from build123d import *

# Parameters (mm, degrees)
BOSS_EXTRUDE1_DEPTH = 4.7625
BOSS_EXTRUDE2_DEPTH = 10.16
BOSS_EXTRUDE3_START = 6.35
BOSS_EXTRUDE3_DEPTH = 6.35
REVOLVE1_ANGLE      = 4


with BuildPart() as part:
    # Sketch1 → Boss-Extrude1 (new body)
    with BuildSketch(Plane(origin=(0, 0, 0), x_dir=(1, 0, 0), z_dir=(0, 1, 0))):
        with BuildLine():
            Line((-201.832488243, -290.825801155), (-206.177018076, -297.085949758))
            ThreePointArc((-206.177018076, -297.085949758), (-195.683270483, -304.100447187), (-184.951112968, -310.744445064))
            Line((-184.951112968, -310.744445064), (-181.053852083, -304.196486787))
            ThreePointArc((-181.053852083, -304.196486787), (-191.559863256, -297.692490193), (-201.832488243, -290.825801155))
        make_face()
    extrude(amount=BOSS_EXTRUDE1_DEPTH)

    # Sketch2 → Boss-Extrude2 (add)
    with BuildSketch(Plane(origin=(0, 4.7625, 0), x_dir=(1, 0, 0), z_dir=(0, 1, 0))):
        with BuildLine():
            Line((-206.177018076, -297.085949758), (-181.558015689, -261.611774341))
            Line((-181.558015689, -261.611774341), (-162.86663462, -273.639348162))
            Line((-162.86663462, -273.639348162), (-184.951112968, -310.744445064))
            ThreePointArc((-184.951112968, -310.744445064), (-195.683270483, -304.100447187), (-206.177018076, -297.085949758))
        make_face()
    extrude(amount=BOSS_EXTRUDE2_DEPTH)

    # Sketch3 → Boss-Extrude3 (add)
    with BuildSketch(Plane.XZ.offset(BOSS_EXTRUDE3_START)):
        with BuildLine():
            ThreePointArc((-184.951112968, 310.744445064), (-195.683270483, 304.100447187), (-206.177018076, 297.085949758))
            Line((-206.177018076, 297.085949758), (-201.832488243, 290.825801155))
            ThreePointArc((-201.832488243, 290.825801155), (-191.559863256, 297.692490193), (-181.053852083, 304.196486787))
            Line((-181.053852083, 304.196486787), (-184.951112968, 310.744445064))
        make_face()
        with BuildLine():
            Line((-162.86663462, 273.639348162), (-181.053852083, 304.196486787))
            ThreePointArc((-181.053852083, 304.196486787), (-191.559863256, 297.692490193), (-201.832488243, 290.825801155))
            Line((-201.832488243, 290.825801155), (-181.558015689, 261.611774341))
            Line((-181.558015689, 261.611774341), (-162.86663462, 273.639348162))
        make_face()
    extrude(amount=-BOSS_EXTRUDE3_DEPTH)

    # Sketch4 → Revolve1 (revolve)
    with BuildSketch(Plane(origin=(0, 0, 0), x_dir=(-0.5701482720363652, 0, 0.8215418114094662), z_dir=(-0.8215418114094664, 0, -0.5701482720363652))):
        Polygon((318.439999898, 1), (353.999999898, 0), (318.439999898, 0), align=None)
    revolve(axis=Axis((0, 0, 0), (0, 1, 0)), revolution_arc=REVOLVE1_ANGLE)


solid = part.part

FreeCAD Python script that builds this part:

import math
import FreeCAD as App
import Part
import Sketcher

V = App.Vector
Q = App.Units.Quantity


def add_polygon(sketch, points):
    """Adds a closed chain of lines whose ends are joined by coincident constraints."""
    first, n = sketch.GeometryCount, len(points)
    for a, b in zip(points, points[1:] + points[:1]):
        sketch.addGeometry(Part.LineSegment(App.Vector(*a, 0), App.Vector(*b, 0)), False)
    for i in range(n):
        sketch.addConstraint(Sketcher.Constraint("Coincident", first + i, 2, first + (i + 1) % n, 1))

doc = App.newDocument("Part")
body = doc.addObject("PartDesign::Body", "Body")

# Sketch on XZ plane
sketch1 = doc.addObject("Sketcher::SketchObject", "Sketch")
body.addObject(sketch1)
sketch1.AttachmentSupport = (doc.XZ_Plane, [""])
sketch1.MapMode = "FlatFace"
sketch1.addGeometry([
    Part.LineSegment(V(-202, 291, 0), V(-206, 297, 0)),
    Part.ArcOfCircle(Part.Circle(V(0, 0, 0), V(0, 0, 1), 362), math.radians(120.76), math.radians(124.76)),
    Part.LineSegment(V(-185, 311, 0), V(-181, 304, 0)),
    Part.ArcOfCircle(Part.Circle(V(0, 0, 0), V(0, 0, 1), 354), math.radians(120.76), math.radians(124.76)),
], False)
sketch1.addConstraint([
    Sketcher.Constraint("Coincident", 0, 2, 1, 2),
    Sketcher.Constraint("Coincident", 1, 1, 2, 1),
    Sketcher.Constraint("Coincident", 2, 2, 3, 1),
    Sketcher.Constraint("Coincident", 3, 2, 0, 1),
    Sketcher.Constraint("Coincident", 1, 3, -1, 1),
    Sketcher.Constraint("Coincident", 3, 3, -1, 1),
    Sketcher.Constraint("Distance", 0, Q("0.3 in")),
    Sketcher.Constraint("Radius", 1, 361.62),
    Sketcher.Constraint("DistanceY", -1, 1, 3, 2, 290.825801),
    Sketcher.Constraint("DistanceX", 0, 2, -1, 1, 206.177018),
    Sketcher.Constraint("DistanceX", 1, 1, 2, 2, 3.897261),
    Sketcher.Constraint("DistanceX", 2, 2, 3, 3, 181.053852),
])
pad1 = doc.addObject("PartDesign::Pad", "Pad")
body.addObject(pad1)
pad1.Profile = sketch1
pad1.Length = Q("0.1875 in")
pad1.Reversed = True

# Sketch on XZ plane
sketch2 = doc.addObject("Sketcher::SketchObject", "Sketch001")
body.addObject(sketch2)
sketch2.AttachmentSupport = (doc.XZ_Plane, [""])
sketch2.MapMode = "FlatFace"
sketch2.AttachmentOffset = App.Placement(V(0, 0, -0.1875 * 25.4), App.Rotation())
sketch2.addGeometry([
    Part.LineSegment(V(-182, 262, 0), V(-206, 297, 0)),
    Part.ArcOfCircle(Part.Circle(V(0, 0, 0), V(0, 0, 1), 362), math.radians(120.76), math.radians(124.76)),
    Part.LineSegment(V(-185, 311, 0), V(-163, 274, 0)),
    Part.LineSegment(V(-163, 274, 0), V(-182, 262, 0)),
], False)
sketch2.addConstraint([
    Sketcher.Constraint("Coincident", 0, 2, 1, 2),
    Sketcher.Constraint("Coincident", 1, 1, 2, 1),
    Sketcher.Constraint("Coincident", 2, 2, 3, 1),
    Sketcher.Constraint("Coincident", 3, 2, 0, 1),
    Sketcher.Constraint("Coincident", 1, 3, -1, 1),
    Sketcher.Constraint("Equal", 0, 2),
    Sketcher.Constraint("Distance", 0, Q("1.7 in")),
    Sketcher.Constraint("Radius", 1, 361.62),
    Sketcher.Constraint("DistanceY", 2, 2, 0, 2, 23.446602),
    Sketcher.Constraint("Distance", 3, 22.226791),
    Sketcher.Constraint("DistanceX", 0, 2, -1, 1, 206.177018),
    Sketcher.Constraint("DistanceX", 1, 1, 2, 2, 22.084478),
])
pad2 = doc.addObject("PartDesign::Pad", "Pad001")
body.addObject(pad2)
pad2.Profile = sketch2
pad2.Length = Q("0.4 in")
pad2.Reversed = True

# Sketch on XZ plane
sketch3 = doc.addObject("Sketcher::SketchObject", "Sketch002")
body.addObject(sketch3)
sketch3.AttachmentSupport = (doc.XZ_Plane, [""])
sketch3.MapMode = "FlatFace"
sketch3.AttachmentOffset = App.Placement(V(0, 0, 0.25 * 25.4), App.Rotation())
sketch3.addGeometry([
    Part.ArcOfCircle(Part.Circle(V(0, 0, 0), V(0, 0, 1), 362), math.radians(120.76), math.radians(124.76)),  # 0
    Part.LineSegment(V(-206, 297, 0), V(-182, 262, 0)),  # 1
    Part.LineSegment(V(-182, 262, 0), V(-163, 274, 0)),  # 2
    Part.LineSegment(V(-163, 274, 0), V(-181, 304, 0)),  # 3
    Part.LineSegment(V(-181, 304, 0), V(-185, 311, 0)),  # 4
], False)
sketch3.addConstraint([
    Sketcher.Constraint("Coincident", 0, 2, 1, 1),
    Sketcher.Constraint("Coincident", 1, 2, 2, 1),
    Sketcher.Constraint("Coincident", 2, 2, 3, 1),
    Sketcher.Constraint("Coincident", 3, 2, 4, 1),
    Sketcher.Constraint("Coincident", 4, 2, 0, 1),
    Sketcher.Constraint("Coincident", 0, 3, -1, 1),
    Sketcher.Constraint("Parallel", 3, 4),
    Sketcher.Constraint("Distance", 1, Q("1.7 in")),
    Sketcher.Constraint("Distance", 3, Q("1.4 in")),
    Sketcher.Constraint("Distance", 4, Q("0.3 in")),
    Sketcher.Constraint("Radius", 0, 361.62),
    Sketcher.Constraint("DistanceY", 2, 2, 0, 2, 23.446602),
    Sketcher.Constraint("Distance", 2, 22.226791),
    Sketcher.Constraint("DistanceY", -1, 1, 2, 2, 273.639348),
    Sketcher.Constraint("DistanceY", 2, 2, 3, 2, 30.557139),
])
pad3 = doc.addObject("PartDesign::Pad", "Pad002")
body.addObject(pad3)
pad3.Profile = sketch3
pad3.Length = Q("0.25 in")
pad3.Reversed = True

# Sketch on an angled plane
sketch4 = doc.addObject("Sketcher::SketchObject", "Sketch003")
body.addObject(sketch4)
sketch4.Placement = App.Placement(V(0, 0, 0), App.Rotation(V(-0.570148272, 0, 0.821541811), V(0, 0.999999999, 0), V(-0.821541811, 0, -0.570148272), "ZXY"))
add_polygon(sketch4, [(354, 0), (318.4, 1), (318.4, 0)])  # lines 0-2
sketch4.addConstraint([
    Sketcher.Constraint("Vertical", 1),
    Sketcher.Constraint("Horizontal", 2),
    Sketcher.Constraint("PointOnObject", 1, 2, -1),
    Sketcher.Constraint("DistanceX", 2, 1, 2, 2, Q("1.4 in")),
    Sketcher.Constraint("DistanceY", 1, 2, 1, 1, 1.0),
    Sketcher.Constraint("DistanceX", -1, 1, 0, 2, 318.44),
])
revolution = doc.addObject("PartDesign::Revolution", "Revolution")
body.addObject(revolution)
revolution.Profile = sketch4
revolution.ReferenceAxis = (sketch4, ["V_Axis"])
revolution.Angle = 4

doc.recompute()
